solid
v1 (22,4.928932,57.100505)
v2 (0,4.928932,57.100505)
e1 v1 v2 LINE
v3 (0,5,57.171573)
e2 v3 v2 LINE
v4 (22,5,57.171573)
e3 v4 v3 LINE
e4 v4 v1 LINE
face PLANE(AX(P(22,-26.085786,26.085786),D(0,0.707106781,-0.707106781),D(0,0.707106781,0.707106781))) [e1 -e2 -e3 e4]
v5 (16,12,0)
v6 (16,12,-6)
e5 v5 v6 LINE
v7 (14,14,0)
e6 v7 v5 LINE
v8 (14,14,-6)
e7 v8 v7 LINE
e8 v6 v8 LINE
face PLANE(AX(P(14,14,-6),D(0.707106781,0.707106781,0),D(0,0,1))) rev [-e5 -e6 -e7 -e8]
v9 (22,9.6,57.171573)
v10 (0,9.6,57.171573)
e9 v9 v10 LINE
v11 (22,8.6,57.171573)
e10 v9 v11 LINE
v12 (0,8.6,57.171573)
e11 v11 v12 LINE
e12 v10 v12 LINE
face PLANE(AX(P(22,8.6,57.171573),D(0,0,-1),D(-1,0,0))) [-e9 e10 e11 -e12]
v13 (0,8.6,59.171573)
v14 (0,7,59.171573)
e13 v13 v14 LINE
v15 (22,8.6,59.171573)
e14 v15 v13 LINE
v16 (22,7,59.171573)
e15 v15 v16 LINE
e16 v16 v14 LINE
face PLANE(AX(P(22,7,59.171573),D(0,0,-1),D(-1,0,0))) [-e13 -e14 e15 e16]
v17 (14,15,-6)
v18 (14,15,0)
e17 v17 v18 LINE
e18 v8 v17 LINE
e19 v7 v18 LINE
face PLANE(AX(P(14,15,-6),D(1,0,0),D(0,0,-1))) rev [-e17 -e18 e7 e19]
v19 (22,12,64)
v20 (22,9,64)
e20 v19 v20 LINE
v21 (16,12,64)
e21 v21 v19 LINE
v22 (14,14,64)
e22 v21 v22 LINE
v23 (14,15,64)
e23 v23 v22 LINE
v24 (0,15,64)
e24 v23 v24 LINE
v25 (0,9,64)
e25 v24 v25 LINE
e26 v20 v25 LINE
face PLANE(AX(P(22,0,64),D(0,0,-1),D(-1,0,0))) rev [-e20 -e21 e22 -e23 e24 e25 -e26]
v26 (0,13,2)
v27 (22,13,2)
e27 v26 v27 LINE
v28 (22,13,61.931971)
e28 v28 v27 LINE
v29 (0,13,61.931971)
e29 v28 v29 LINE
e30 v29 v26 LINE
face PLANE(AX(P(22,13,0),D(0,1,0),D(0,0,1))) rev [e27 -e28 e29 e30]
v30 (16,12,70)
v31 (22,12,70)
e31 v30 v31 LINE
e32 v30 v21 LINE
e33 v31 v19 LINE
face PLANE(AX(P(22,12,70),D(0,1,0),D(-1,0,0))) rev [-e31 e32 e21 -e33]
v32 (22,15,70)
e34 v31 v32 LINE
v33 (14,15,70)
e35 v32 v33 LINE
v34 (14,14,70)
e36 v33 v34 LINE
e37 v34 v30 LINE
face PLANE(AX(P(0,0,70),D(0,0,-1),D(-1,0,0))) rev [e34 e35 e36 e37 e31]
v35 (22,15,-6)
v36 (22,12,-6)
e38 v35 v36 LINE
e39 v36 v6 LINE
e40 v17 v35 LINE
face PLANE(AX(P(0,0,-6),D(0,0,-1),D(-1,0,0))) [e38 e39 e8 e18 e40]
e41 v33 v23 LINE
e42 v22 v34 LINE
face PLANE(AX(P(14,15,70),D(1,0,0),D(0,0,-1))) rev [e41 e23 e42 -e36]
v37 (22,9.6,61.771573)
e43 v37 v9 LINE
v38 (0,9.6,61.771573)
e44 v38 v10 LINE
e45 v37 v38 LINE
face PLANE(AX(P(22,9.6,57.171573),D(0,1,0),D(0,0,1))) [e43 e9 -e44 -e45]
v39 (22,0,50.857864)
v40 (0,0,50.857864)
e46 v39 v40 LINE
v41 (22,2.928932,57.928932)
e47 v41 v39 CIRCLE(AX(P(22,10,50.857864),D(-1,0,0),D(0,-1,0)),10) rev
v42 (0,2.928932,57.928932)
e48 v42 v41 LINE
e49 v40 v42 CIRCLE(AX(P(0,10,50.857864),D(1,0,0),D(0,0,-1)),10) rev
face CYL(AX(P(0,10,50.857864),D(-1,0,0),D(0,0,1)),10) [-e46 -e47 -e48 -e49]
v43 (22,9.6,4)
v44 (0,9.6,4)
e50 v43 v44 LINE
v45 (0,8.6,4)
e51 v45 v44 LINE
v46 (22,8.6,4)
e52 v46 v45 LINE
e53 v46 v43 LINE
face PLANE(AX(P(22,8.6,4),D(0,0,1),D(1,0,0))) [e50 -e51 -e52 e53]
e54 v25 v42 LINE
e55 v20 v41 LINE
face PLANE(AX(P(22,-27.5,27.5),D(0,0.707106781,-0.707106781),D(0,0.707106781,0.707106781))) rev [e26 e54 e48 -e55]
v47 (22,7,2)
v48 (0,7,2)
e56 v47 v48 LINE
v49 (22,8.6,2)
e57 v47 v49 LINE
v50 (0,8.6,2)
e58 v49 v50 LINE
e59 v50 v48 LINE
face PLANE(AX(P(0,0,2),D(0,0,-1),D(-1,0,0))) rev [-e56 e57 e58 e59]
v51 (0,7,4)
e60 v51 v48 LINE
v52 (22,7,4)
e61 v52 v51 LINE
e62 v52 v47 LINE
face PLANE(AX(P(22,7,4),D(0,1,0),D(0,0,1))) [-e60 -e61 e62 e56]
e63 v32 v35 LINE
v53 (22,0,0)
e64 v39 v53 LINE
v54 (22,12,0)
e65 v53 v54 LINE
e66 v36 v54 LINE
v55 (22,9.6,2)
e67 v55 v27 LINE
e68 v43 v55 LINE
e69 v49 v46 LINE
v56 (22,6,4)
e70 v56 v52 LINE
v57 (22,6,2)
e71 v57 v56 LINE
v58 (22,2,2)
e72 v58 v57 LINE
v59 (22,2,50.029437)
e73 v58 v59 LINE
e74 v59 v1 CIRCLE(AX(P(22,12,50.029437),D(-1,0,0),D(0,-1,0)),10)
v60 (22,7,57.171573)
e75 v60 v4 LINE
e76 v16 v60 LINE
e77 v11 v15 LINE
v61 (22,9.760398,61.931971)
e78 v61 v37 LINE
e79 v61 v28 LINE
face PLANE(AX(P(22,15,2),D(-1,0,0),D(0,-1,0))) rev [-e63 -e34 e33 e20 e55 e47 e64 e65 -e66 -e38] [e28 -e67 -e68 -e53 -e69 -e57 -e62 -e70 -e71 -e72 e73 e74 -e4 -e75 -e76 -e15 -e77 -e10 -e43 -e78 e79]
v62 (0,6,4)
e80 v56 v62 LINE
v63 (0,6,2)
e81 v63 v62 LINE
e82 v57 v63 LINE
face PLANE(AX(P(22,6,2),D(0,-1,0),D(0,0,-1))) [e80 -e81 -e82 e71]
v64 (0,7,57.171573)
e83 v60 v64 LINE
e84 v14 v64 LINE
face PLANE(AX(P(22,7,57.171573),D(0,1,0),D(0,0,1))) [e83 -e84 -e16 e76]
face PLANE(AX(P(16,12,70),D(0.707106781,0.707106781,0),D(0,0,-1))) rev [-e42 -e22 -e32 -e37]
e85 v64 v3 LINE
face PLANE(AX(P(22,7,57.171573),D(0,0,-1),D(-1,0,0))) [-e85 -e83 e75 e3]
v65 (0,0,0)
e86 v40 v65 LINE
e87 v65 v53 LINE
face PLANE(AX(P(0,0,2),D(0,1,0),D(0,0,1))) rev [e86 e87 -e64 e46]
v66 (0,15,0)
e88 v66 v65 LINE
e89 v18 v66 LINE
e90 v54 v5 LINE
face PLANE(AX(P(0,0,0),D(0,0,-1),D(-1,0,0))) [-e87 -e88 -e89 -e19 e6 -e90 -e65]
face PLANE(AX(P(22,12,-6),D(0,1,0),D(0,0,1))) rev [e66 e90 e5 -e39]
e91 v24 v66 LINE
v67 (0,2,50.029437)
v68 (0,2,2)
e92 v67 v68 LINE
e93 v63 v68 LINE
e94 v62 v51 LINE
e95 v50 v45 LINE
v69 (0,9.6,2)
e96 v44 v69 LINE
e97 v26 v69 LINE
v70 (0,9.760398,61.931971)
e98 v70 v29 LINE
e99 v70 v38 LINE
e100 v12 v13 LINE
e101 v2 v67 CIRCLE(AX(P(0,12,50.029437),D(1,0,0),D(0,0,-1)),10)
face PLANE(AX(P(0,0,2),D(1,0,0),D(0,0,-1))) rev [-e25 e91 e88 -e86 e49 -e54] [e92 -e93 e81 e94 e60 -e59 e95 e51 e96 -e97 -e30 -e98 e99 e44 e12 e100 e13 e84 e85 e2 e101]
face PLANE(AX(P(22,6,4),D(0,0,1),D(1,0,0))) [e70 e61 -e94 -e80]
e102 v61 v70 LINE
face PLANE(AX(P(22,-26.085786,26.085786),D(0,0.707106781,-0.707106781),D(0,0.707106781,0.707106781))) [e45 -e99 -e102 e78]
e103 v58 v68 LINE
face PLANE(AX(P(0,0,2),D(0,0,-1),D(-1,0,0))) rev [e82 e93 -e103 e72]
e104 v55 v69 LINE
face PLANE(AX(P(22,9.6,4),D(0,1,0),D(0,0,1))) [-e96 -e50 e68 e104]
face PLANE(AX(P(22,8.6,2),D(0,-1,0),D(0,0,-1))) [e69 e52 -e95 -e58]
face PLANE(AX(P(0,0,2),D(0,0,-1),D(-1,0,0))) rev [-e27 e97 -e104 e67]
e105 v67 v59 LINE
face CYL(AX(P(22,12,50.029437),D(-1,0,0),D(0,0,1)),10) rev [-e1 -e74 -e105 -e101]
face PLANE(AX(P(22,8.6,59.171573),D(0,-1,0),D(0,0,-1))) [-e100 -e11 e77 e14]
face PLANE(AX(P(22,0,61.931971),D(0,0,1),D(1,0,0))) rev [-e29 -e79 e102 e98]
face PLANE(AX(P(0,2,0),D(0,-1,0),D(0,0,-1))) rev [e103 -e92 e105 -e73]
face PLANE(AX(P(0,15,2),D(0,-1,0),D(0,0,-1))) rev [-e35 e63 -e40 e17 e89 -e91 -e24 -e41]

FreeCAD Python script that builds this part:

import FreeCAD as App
import Part
import Sketcher

V = App.Vector
Q = App.Units.Quantity


def edges_at(feature, points):
    """Names of the edges that pass closest to the given points."""
    edges = feature.Shape.Edges
    near = lambda p: min(range(len(edges)), key=lambda i: edges[i].distToShape(Part.Vertex(*p))[0])
    return sorted({f"Edge{near(p) + 1}" for p in points})


def add_polygon(sketch, points):
    """Adds a closed chain of lines whose ends are joined by coincident constraints."""
    first, n = sketch.GeometryCount, len(points)
    for a, b in zip(points, points[1:] + points[:1]):
        sketch.addGeometry(Part.LineSegment(App.Vector(*a, 0), App.Vector(*b, 0)), False)
    for i in range(n):
        sketch.addConstraint(Sketcher.Constraint("Coincident", first + i, 2, first + (i + 1) % n, 1))

doc = App.newDocument("Part")
body = doc.addObject("PartDesign::Body", "Body")

# Sketch on XY plane
sketch1 = doc.addObject("Sketcher::SketchObject", "Sketch")
body.addObject(sketch1)
sketch1.AttachmentSupport = (doc.XY_Plane, [""])
sketch1.MapMode = "FlatFace"
add_polygon(sketch1, [(0, 15), (0, 0), (22, 0), (22, 15)])  # lines 0-3
sketch1.addConstraint([
    Sketcher.Constraint("Vertical", 0),
    Sketcher.Constraint("Horizontal", 1),
    Sketcher.Constraint("Vertical", 2),
    Sketcher.Constraint("Horizontal", 3),
    Sketcher.Constraint("Coincident", 0, 2, -1, 1),
    Sketcher.Constraint("DistanceX", 1, 1, 1, 2, 22.0),
    Sketcher.Constraint("DistanceY", 0, 2, 0, 1, 15.0),
])
pad1 = doc.addObject("PartDesign::Pad", "Pad")
body.addObject(pad1)
pad1.Profile = sketch1
pad1.Length = 2

# Sketch on XZ plane
sketch2 = doc.addObject("Sketcher::SketchObject", "Sketch001")
body.addObject(sketch2)
sketch2.AttachmentSupport = (doc.XZ_Plane, [""])
sketch2.MapMode = "FlatFace"
add_polygon(sketch2, [(0, 30), (0, 0), (22, 0), (22, 30)])  # lines 0-3
sketch2.addConstraint([
    Sketcher.Constraint("Vertical", 0),
    Sketcher.Constraint("Horizontal", 1),
    Sketcher.Constraint("Vertical", 2),
    Sketcher.Constraint("Horizontal", 3),
    Sketcher.Constraint("Coincident", 0, 2, -1, 1),
    Sketcher.Constraint("DistanceX", 1, 1, 1, 2, 22.0),
    Sketcher.Constraint("DistanceY", 0, 2, 0, 1, 30.0),
])
pad2 = doc.addObject("PartDesign::Pad", "Pad001")
body.addObject(pad2)
pad2.Profile = sketch2
pad2.Length = 2
pad2.Reversed = True

# Sketch on YZ plane
sketch3 = doc.addObject("Sketcher::SketchObject", "Sketch002")
body.addObject(sketch3)
sketch3.AttachmentSupport = (doc.YZ_Plane, [""])
sketch3.MapMode = "FlatFace"
add_polygon(sketch3, [(15, 64), (15, 0), (13, 0), (13, 61.931971), (9.760398, 61.931971), (2, 54.171573), (2, 30), (0, 30), (0, 55), (9, 64)])  # lines 0-9
sketch3.addConstraint([
    Sketcher.Constraint("Vertical", 0),
    Sketcher.Constraint("Horizontal", 1),
    Sketcher.Constraint("Vertical", 2),
    Sketcher.Constraint("Horizontal", 3),
    Sketcher.Constraint("Vertical", 5),
    Sketcher.Constraint("Horizontal", 6),
    Sketcher.Constraint("Vertical", 7),
    Sketcher.Constraint("Horizontal", 9),
    Sketcher.Constraint("PointOnObject", 0, 2, -1),
    Sketcher.Constraint("PointOnObject", 6, 2, -2),
    Sketcher.Constraint("Parallel", 4, 8),
    Sketcher.Constraint("Equal", 1, 6),
    Sketcher.Constraint("DistanceX", 1, 2, 1, 1, 2.0),
    Sketcher.Constraint("DistanceX", 9, 1, 9, 2, 6.0),
    Sketcher.Constraint("DistanceY", 0, 2, 0, 1, 64.0),
    Sketcher.Constraint("DistanceY", 7, 1, 7, 2, 25.0),
    Sketcher.Constraint("Angle", 4, Q("-135 deg")),
    Sketcher.Constraint("DistanceX", -1, 1, 0, 2, 15.0),
    Sketcher.Constraint("DistanceX", 3, 2, 3, 1, 3.239602),
    Sketcher.Constraint("DistanceY", 2, 1, 2, 2, 61.931971),
])
pad3 = doc.addObject("PartDesign::Pad", "Pad002")
body.addObject(pad3)
pad3.Profile = sketch3
pad3.Length = 22

# Sketch on XY plane
sketch4 = doc.addObject("Sketcher::SketchObject", "Sketch003")
body.addObject(sketch4)
sketch4.AttachmentSupport = (doc.XY_Plane, [""])
sketch4.MapMode = "FlatFace"
sketch4.AttachmentOffset = App.Placement(V(0, 0, 64), App.Rotation())
add_polygon(sketch4, [(14, 15), (14, 12), (22, 12), (22, 15)])  # lines 0-3
sketch4.addConstraint([
    Sketcher.Constraint("Vertical", 0),
    Sketcher.Constraint("Horizontal", 1),
    Sketcher.Constraint("Vertical", 2),
    Sketcher.Constraint("Horizontal", 3),
    Sketcher.Constraint("DistanceX", 1, 1, 1, 2, 8.0),
    Sketcher.Constraint("DistanceY", 0, 2, 0, 1, 3.0),
    Sketcher.Constraint("DistanceX", -1, 1, 0, 2, 14.0),
    Sketcher.Constraint("DistanceY", -1, 1, 0, 2, 12.0),
])
pad4 = doc.addObject("PartDesign::Pad", "Pad003")
body.addObject(pad4)
pad4.Profile = sketch4
pad4.Length = 6

# Sketch on XY plane
sketch5 = doc.addObject("Sketcher::SketchObject", "Sketch004")
body.addObject(sketch5)
sketch5.AttachmentSupport = (doc.XY_Plane, [""])
sketch5.MapMode = "FlatFace"
add_polygon(sketch5, [(22, 15), (22, 12), (14, 12), (14, 15)])  # lines 0-3
sketch5.addConstraint([
    Sketcher.Constraint("Vertical", 0),
    Sketcher.Constraint("Horizontal", 1),
    Sketcher.Constraint("Vertical", 2),
    Sketcher.Constraint("Horizontal", 3),
    Sketcher.Constraint("DistanceX", 1, 2, 1, 1, 8.0),
    Sketcher.Constraint("DistanceY", 0, 2, 0, 1, 3.0),
    Sketcher.Constraint("DistanceX", -1, 1, 0, 2, 22.0),
    Sketcher.Constraint("DistanceY", -1, 1, 0, 2, 12.0),
])
pad5 = doc.addObject("PartDesign::Pad", "Pad004")
body.addObject(pad5)
pad5.Profile = sketch5
pad5.Length = 6
pad5.Reversed = True
doc.recompute()

chamfer = doc.addObject("PartDesign::Chamfer", "Chamfer")
body.addObject(chamfer)
chamfer.Base = (pad5, edges_at(pad5, [(14, 12, 67), (14, 12, -3)]))
chamfer.Size = 2

# Sketch on YZ plane
sketch6 = doc.addObject("Sketcher::SketchObject", "Sketch005")
body.addObject(sketch6)
sketch6.AttachmentSupport = (doc.YZ_Plane, [""])
sketch6.MapMode = "FlatFace"
add_polygon(sketch6, [(7, 59.171573), (7, 57.171573), (5, 57.171573), (5, 59.171573), (6.316485, 59.171573), (6.316485, 60.513582), (7.925359, 60.513582), (7.925359, 61.771573), (9.6, 61.771573), (9.6, 57.171573), (8.6, 57.171573), (8.6, 59.171573)])  # lines 0-11
add_polygon(sketch6, [(7, 2), (6, 2), (6, 4), (7, 4)])  # lines 12-15
add_polygon(sketch6, [(9.6, 2), (8.6, 2), (8.6, 4), (9.6, 4)])  # lines 16-19
sketch6.addConstraint([
    Sketcher.Constraint("Vertical", 0),
    Sketcher.Constraint("Horizontal", 1),
    Sketcher.Constraint("Vertical", 2),
    Sketcher.Constraint("Horizontal", 3),
    Sketcher.Constraint("Vertical", 4),
    Sketcher.Constraint("Horizontal", 5),
    Sketcher.Constraint("Vertical", 6),
    Sketcher.Constraint("Horizontal", 7),
    Sketcher.Constraint("Vertical", 8),
    Sketcher.Constraint("Horizontal", 9),
    Sketcher.Constraint("Vertical", 10),
    Sketcher.Constraint("Horizontal", 11),
    Sketcher.Constraint("Horizontal", 12),
    Sketcher.Constraint("Vertical", 13),
    Sketcher.Constraint("Horizontal", 14),
    Sketcher.Constraint("Vertical", 15),
    Sketcher.Constraint("Horizontal", 16),
    Sketcher.Constraint("Vertical", 17),
    Sketcher.Constraint("Horizontal", 18),
    Sketcher.Constraint("Vertical", 19),
    Sketcher.Constraint("Horizontal", 1, 2, 8, 2),
    Sketcher.Constraint("Horizontal", 3, 2, 10, 2),
    Sketcher.Constraint("Horizontal", 15, 2, 16, 2),
    Sketcher.Constraint("Horizontal", 14, 2, 17, 2),
    Sketcher.Constraint("Vertical", 11, 2, 14, 2),
    Sketcher.Constraint("Vertical", 10, 2, 16, 2),
    Sketcher.Constraint("Vertical", 8, 2, 18, 2),
    Sketcher.Constraint("Equal", 9, 12),
    Sketcher.Constraint("Equal", 1, 0),
    Sketcher.Constraint("Equal", 10, 13),
    Sketcher.Constraint("DistanceX", 1, 2, 1, 1, 2.0),
    Sketcher.Constraint("DistanceX", 9, 2, 9, 1, 1.0),
    Sketcher.Constraint("DistanceX", 11, 2, 11, 1, 1.6),
    Sketcher.Constraint("DistanceY", 8, 2, 8, 1, 4.6),
    Sketcher.Constraint("DistanceX", -1, 1, 0, 2, 7.0),
    Sketcher.Constraint("DistanceY", -1, 1, 12, 2, 2.0),
    Sketcher.Constraint("DistanceX", 7, 1, 7, 2, 1.674641),
    Sketcher.Constraint("DistanceY", 4, 1, 4, 2, 1.34201),
    Sketcher.Constraint("DistanceX", 3, 1, 3, 2, 1.316485),
    Sketcher.Constraint("DistanceY", -1, 1, 0, 2, 57.171573),
])
pad6 = doc.addObject("PartDesign::Pad", "Pad005")
body.addObject(pad6)
pad6.Profile = sketch6
pad6.Length = 22
doc.recompute()

fillet = doc.addObject("PartDesign::Fillet", "Fillet")
body.addObject(fillet)
fillet.Base = (pad6, edges_at(pad6, [(11, 2, 54.172), (11, 0, 55)]))
fillet.Radius = 10

doc.recompute()
